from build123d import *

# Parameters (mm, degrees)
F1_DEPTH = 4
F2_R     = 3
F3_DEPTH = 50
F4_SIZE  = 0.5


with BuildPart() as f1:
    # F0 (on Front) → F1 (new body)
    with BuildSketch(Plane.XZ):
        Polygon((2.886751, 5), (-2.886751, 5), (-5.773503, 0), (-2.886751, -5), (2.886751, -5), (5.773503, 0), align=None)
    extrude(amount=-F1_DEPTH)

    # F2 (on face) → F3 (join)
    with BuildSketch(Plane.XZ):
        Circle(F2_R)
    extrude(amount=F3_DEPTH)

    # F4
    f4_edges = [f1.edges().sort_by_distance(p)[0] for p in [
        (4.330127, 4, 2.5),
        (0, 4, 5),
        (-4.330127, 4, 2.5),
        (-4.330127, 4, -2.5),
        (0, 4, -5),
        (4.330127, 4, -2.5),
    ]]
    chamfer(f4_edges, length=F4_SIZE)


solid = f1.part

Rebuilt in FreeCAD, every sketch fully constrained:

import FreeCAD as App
import Part
import Sketcher

V = App.Vector
Q = App.Units.Quantity


def edges_at(feature, points):
    """Names of the edges that pass closest to the given points."""
    edges = feature.Shape.Edges
    near = lambda p: min(range(len(edges)), key=lambda i: edges[i].distToShape(Part.Vertex(*p))[0])
    return sorted({f"Edge{near(p) + 1}" for p in points})

doc = App.newDocument("Part")
params = doc.addObject("Spreadsheet::Sheet", "Params")
for row, (alias, value) in enumerate([
    ("pad1_length", "4 mm"),
    ("sketch2_diameter", "6 mm"),
    ("pad2_length", "50 mm"),
    ("chamfer_size", "0.5 mm"),
], start=1):
    params.set(f"A{row}", alias)
    params.set(f"B{row}", "=" + value)
    params.setAlias(f"B{row}", alias)

body = doc.addObject("PartDesign::Body", "Body")

sketch1 = body.newObject("Sketcher::SketchObject", "Sketch")
sketch1.AttachmentSupport = (doc.getObject("XZ_Plane"), [""])
sketch1.MapMode = "FlatFace"
sketch1.addGeometry(Part.LineSegment(V(3, 5, 0), V(-3, 5, 0)), False)
sketch1.addGeometry(Part.LineSegment(V(-3, 5, 0), V(-6, 0, 0)), False)
sketch1.addGeometry(Part.LineSegment(V(-6, 0, 0), V(-3, -5, 0)), False)
sketch1.addGeometry(Part.LineSegment(V(-3, -5, 0), V(3, -5, 0)), False)
sketch1.addGeometry(Part.LineSegment(V(3, -5, 0), V(6, 0, 0)), False)
sketch1.addGeometry(Part.LineSegment(V(6, 0, 0), V(3, 5, 0)), False)
sketch1.addConstraint(Sketcher.Constraint("Coincident", 0, 2, 1, 1))
sketch1.addConstraint(Sketcher.Constraint("Coincident", 1, 2, 2, 1))
sketch1.addConstraint(Sketcher.Constraint("Coincident", 2, 2, 3, 1))
sketch1.addConstraint(Sketcher.Constraint("Coincident", 3, 2, 4, 1))
sketch1.addConstraint(Sketcher.Constraint("Coincident", 4, 2, 5, 1))
sketch1.addConstraint(Sketcher.Constraint("Coincident", 5, 2, 0, 1))
sketch1.addConstraint(Sketcher.Constraint("Horizontal", 0))
sketch1.addConstraint(Sketcher.Constraint("Horizontal", 3))
sketch1.addConstraint(Sketcher.Constraint("Symmetric", 0, 2, 3, 2, -1, 1))
sketch1.addConstraint(Sketcher.Constraint("Symmetric", 1, 2, 4, 2, -1, 1))
sketch1.addConstraint(Sketcher.Constraint("PointOnObject", 1, 2, -1))
sketch1.addConstraint(Sketcher.Constraint("Parallel", 2, 5))
sketch1.addConstraint(Sketcher.Constraint("Vertical", 0, 2, 2, 2))
sketch1.addConstraint(Sketcher.Constraint("Angle", 1, Q("-120.000006 deg")))
sketch1.addConstraint(Sketcher.Constraint("DistanceY", -1, 1, 0, 2, 5.0))
sketch1.addConstraint(Sketcher.Constraint("DistanceX", 0, 2, 0, 1, 5.773502))
pad1 = body.newObject("PartDesign::Pad", "Pad")
pad1.Profile = sketch1
pad1.setExpression("Length", "Params.pad1_length")
pad1.Reversed = True

sketch2 = body.newObject("Sketcher::SketchObject", "Sketch001")
sketch2.AttachmentSupport = (doc.getObject("XZ_Plane"), [""])
sketch2.MapMode = "FlatFace"
sketch2.addGeometry(Part.Circle(V(0, 0, 0), V(0, 0, 1), 3), False)
sketch2.addConstraint(Sketcher.Constraint("Coincident", 0, 3, -1, 1))
sketch2.addConstraint(Sketcher.Constraint("Diameter", 0, 6.0))
sketch2.setExpression("Constraints[1]", "Params.sketch2_diameter")
pad2 = body.newObject("PartDesign::Pad", "Pad001")
pad2.Profile = sketch2
pad2.setExpression("Length", "Params.pad2_length")
doc.recompute()

chamfer = body.newObject("PartDesign::Chamfer", "Chamfer")
chamfer.Base = (pad2, edges_at(pad2, [
    (4.33, 4, 2.5),
    (0, 4, 5),
    (-4.33, 4, 2.5),
    (-4.33, 4, -2.5),
    (0, 4, -5),
    (4.33, 4, -2.5),
]))
chamfer.setExpression("Size", "Params.chamfer_size")

doc.recompute()
